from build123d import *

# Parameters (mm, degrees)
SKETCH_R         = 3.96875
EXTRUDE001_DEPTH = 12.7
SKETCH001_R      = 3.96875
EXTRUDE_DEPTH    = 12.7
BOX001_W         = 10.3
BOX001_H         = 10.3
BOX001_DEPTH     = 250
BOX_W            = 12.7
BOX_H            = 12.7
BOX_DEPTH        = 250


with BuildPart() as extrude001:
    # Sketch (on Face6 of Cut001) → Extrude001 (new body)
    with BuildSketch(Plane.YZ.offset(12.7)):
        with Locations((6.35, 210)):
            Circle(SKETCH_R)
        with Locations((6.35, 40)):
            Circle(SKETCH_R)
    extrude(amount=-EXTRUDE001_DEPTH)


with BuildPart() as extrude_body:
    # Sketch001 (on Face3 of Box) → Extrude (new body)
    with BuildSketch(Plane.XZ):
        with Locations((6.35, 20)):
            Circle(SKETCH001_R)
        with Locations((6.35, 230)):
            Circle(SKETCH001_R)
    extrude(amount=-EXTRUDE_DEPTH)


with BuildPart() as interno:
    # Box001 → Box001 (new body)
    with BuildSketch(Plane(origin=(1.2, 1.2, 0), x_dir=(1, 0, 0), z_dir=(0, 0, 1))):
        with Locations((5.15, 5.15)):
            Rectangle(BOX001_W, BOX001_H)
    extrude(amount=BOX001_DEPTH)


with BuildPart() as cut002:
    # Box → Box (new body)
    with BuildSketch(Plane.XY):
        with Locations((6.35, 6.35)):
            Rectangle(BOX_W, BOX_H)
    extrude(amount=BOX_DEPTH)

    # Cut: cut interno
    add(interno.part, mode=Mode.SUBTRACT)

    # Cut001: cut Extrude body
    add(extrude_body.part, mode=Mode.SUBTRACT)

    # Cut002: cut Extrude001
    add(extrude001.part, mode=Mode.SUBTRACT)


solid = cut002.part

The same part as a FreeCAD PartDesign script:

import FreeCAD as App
import Part
import Sketcher

doc = App.newDocument("Part")
body = doc.addObject("PartDesign::Body", "Body")
body.AllowCompound = True

# Sketch on YZ plane
sketch1 = body.newObject("Sketcher::SketchObject", "Sketch")
sketch1.AttachmentSupport = (doc.getObject("YZ_Plane"), [""])
sketch1.MapMode = "FlatFace"
sketch1.AttachmentOffset = App.Placement(App.Vector(0, 0, 12.7), App.Rotation())
sketch1.addGeometry([
    Part.Circle(App.Vector(6.35, 210, 0), App.Vector(0, 0, 1), 3.96875),
    Part.Circle(App.Vector(6.35, 40, 0), App.Vector(0, 0, 1), 3.96875),
], False)
sketch1.addConstraint([
    Sketcher.Constraint("Equal", 0, 1),
    Sketcher.Constraint("Vertical", 0, 3, 1, 3),
    Sketcher.Constraint("DistanceY", -1, 1, 0, 3, 210.0),
    Sketcher.Constraint("DistanceY", -1, 1, 1, 3, 40.0),
    Sketcher.Constraint("Diameter", 0, 7.9375),
    Sketcher.Constraint("DistanceX", -1, 1, 0, 3, 6.35),
])
pad1 = body.newObject("PartDesign::Pad", "Pad")
pad1.Profile = sketch1
pad1.Length = 12.7
pad1.Reversed = True
body2 = doc.addObject("PartDesign::Body", "Body001")
body2.AllowCompound = True

# Sketch on XZ plane
sketch2 = body2.newObject("Sketcher::SketchObject", "Sketch001")
sketch2.AttachmentSupport = (doc.getObject("XZ_Plane001"), [""])
sketch2.MapMode = "FlatFace"
sketch2.addGeometry([
    Part.Circle(App.Vector(6.35, 20, 0), App.Vector(0, 0, 1), 3.96875),
    Part.Circle(App.Vector(6.35, 230, 0), App.Vector(0, 0, 1), 3.96875),
], False)
sketch2.addConstraint([
    Sketcher.Constraint("Equal", 0, 1),
    Sketcher.Constraint("Vertical", 0, 3, 1, 3),
    Sketcher.Constraint("DistanceY", -1, 1, 0, 3, 20.0),
    Sketcher.Constraint("DistanceY", -1, 1, 1, 3, 230.0),
    Sketcher.Constraint("Diameter", 0, 7.9375),
    Sketcher.Constraint("DistanceX", -1, 1, 0, 3, 6.35),
])
pad2 = body2.newObject("PartDesign::Pad", "Pad001")
pad2.Profile = sketch2
pad2.Length = 12.7
pad2.Reversed = True
body3 = doc.addObject("PartDesign::Body", "Body002")

# Sketch on XY plane
sketch3 = body3.newObject("Sketcher::SketchObject", "Sketch002")
sketch3.AttachmentSupport = (doc.getObject("XY_Plane002"), [""])
sketch3.MapMode = "FlatFace"
sketch3.addGeometry([
    Part.LineSegment(App.Vector(1.2, 11.5, 0), App.Vector(1.2, 1.2, 0)),
    Part.LineSegment(App.Vector(1.2, 1.2, 0), App.Vector(11.5, 1.2, 0)),
    Part.LineSegment(App.Vector(11.5, 1.2, 0), App.Vector(11.5, 11.5, 0)),
    Part.LineSegment(App.Vector(11.5, 11.5, 0), App.Vector(1.2, 11.5, 0)),
], False)
sketch3.addConstraint([
    Sketcher.Constraint("Coincident", 0, 2, 1, 1),
    Sketcher.Constraint("Coincident", 1, 2, 2, 1),
    Sketcher.Constraint("Coincident", 2, 2, 3, 1),
    Sketcher.Constraint("Coincident", 3, 2, 0, 1),
    Sketcher.Constraint("Vertical", 0),
    Sketcher.Constraint("Horizontal", 1),
    Sketcher.Constraint("Vertical", 2),
    Sketcher.Constraint("Horizontal", 3),
    Sketcher.Constraint("Equal", 3, 0),
    Sketcher.Constraint("DistanceX", 1, 1, 1, 2, 10.3),
    Sketcher.Constraint("DistanceX", -1, 1, 0, 2, 1.2),
    Sketcher.Constraint("DistanceY", -1, 1, 0, 2, 1.2),
])
pad3 = body3.newObject("PartDesign::Pad", "Pad002")
pad3.Profile = sketch3
pad3.Length = 250
body4 = doc.addObject("PartDesign::Body", "Body003")

# Sketch on XY plane
sketch4 = body4.newObject("Sketcher::SketchObject", "Sketch003")
sketch4.AttachmentSupport = (doc.getObject("XY_Plane003"), [""])
sketch4.MapMode = "FlatFace"
sketch4.addGeometry([
    Part.LineSegment(App.Vector(0, 12.7, 0), App.Vector(0, 0, 0)),
    Part.LineSegment(App.Vector(0, 0, 0), App.Vector(12.7, 0, 0)),
    Part.LineSegment(App.Vector(12.7, 0, 0), App.Vector(12.7, 12.7, 0)),
    Part.LineSegment(App.Vector(12.7, 12.7, 0), App.Vector(0, 12.7, 0)),
], False)
sketch4.addConstraint([
    Sketcher.Constraint("Coincident", 0, 2, 1, 1),
    Sketcher.Constraint("Coincident", 1, 2, 2, 1),
    Sketcher.Constraint("Coincident", 2, 2, 3, 1),
    Sketcher.Constraint("Coincident", 3, 2, 0, 1),
    Sketcher.Constraint("Vertical", 0),
    Sketcher.Constraint("Horizontal", 1),
    Sketcher.Constraint("Vertical", 2),
    Sketcher.Constraint("Horizontal", 3),
    Sketcher.Constraint("Coincident", 0, 2, -1, 1),
    Sketcher.Constraint("Equal", 3, 0),
    Sketcher.Constraint("DistanceX", 1, 1, 1, 2, 12.7),
])
pad4 = body4.newObject("PartDesign::Pad", "Pad003")
pad4.Profile = sketch4
pad4.Length = 250
doc.recompute()

boolean = body4.newObject("PartDesign::Boolean", "Boolean")
boolean.Type = "Cut"
boolean.addObjects([body3])
doc.recompute()

boolean2 = body4.newObject("PartDesign::Boolean", "Boolean001")
boolean2.Type = "Cut"
boolean2.addObjects([body2])
doc.recompute()

boolean3 = body4.newObject("PartDesign::Boolean", "Boolean002")
boolean3.Type = "Cut"
boolean3.addObjects([body])

doc.recompute()
